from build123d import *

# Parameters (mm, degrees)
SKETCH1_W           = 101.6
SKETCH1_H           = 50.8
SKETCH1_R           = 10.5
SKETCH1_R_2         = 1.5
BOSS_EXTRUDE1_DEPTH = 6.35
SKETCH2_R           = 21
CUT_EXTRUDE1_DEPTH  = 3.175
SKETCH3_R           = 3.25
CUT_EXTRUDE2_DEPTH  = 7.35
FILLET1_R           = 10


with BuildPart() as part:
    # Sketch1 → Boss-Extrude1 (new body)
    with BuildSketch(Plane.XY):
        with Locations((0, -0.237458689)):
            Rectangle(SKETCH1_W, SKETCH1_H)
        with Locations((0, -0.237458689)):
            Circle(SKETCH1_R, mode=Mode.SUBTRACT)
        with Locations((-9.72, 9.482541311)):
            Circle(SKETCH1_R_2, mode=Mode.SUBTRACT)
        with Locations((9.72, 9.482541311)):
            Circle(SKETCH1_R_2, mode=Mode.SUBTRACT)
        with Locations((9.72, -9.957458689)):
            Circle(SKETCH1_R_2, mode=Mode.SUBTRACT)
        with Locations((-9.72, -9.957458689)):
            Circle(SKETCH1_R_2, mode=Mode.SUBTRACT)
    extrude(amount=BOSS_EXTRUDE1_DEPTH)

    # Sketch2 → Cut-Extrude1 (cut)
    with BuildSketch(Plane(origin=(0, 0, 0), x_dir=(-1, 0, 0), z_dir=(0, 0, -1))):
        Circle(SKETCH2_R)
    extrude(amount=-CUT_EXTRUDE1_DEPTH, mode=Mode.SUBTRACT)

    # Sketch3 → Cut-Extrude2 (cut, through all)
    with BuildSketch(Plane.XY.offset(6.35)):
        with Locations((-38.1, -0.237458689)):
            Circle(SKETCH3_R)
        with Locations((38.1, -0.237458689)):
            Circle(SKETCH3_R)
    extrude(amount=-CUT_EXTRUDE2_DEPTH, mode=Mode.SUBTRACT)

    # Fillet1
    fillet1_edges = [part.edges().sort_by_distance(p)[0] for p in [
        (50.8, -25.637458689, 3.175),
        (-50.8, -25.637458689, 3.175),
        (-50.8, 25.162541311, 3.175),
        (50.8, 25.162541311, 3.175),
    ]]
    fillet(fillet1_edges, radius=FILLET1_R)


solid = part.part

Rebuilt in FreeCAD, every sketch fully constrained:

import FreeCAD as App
import Part
import Sketcher

V = App.Vector
Q = App.Units.Quantity


def edges_at(feature, points):
    """Names of the edges that pass closest to the given points."""
    edges = feature.Shape.Edges
    near = lambda p: min(range(len(edges)), key=lambda i: edges[i].distToShape(Part.Vertex(*p))[0])
    return sorted({f"Edge{near(p) + 1}" for p in points})


def add_polygon(sketch, points):
    """Adds a closed chain of lines whose ends are joined by coincident constraints."""
    first, n = sketch.GeometryCount, len(points)
    for a, b in zip(points, points[1:] + points[:1]):
        sketch.addGeometry(Part.LineSegment(App.Vector(*a, 0), App.Vector(*b, 0)), False)
    for i in range(n):
        sketch.addConstraint(Sketcher.Constraint("Coincident", first + i, 2, first + (i + 1) % n, 1))

doc = App.newDocument("Part")
params = doc.addObject("Spreadsheet::Sheet", "Params")
for row, (alias, value) in enumerate([
    ("sketch1_diameter", "3 mm"),
    ("sketch1_diameter2", "21 mm"),
    ("sketch1_width", "101.6 mm"),
    ("sketch1_height", "50.8 mm"),
    ("pad1_length", "6.35 mm"),
    ("sketch2_diameter", "42 mm"),
    ("pocket1_length", "3.175 mm"),
    ("sketch3_diameter", "6.5 mm"),
    ("fillet_radius", "10 mm"),
], start=1):
    params.set(f"A{row}", alias)
    params.set(f"B{row}", "=" + value)
    params.setAlias(f"B{row}", alias)

body = doc.addObject("PartDesign::Body", "Body")

sketch1 = body.newObject("Sketcher::SketchObject", "Sketch")
sketch1.AttachmentSupport = (doc.getObject("XY_Plane"), [""])
sketch1.MapMode = "FlatFace"
add_polygon(sketch1, [(-50.8, 25.2), (-50.8, -25.6), (50.8, -25.6), (50.8, 25.2)])
sketch1.addGeometry(Part.Circle(V(-9.7, -10, 0), V(0, 0, 1), 1.5), False)
sketch1.addGeometry(Part.Circle(V(9.7, -10, 0), V(0, 0, 1), 1.5), False)
sketch1.addGeometry(Part.Circle(V(-9.7, 9.5, 0), V(0, 0, 1), 1.5), False)
sketch1.addGeometry(Part.Circle(V(0, -0.2, 0), V(0, 0, 1), 10.5), False)
sketch1.addGeometry(Part.Circle(V(9.7, 9.5, 0), V(0, 0, 1), 1.5), False)
sketch1.addConstraint([
    Sketcher.Constraint("Vertical", 0),
    Sketcher.Constraint("Horizontal", 1),
    Sketcher.Constraint("Vertical", 2),
    Sketcher.Constraint("Horizontal", 3),
    Sketcher.Constraint("Equal", 4, 5),
    Sketcher.Constraint("Equal", 5, 6),
    Sketcher.Constraint("Equal", 6, 8),
    Sketcher.Constraint("Symmetric", 4, 3, 5, 3, -2),
    Sketcher.Constraint("Symmetric", 6, 3, 8, 3, -2),
    Sketcher.Constraint("PointOnObject", 7, 3, -2),
    Sketcher.Constraint("Vertical", 4, 3, 6, 3),
    Sketcher.Constraint("Diameter", 4, Q("3 mm")),
    Sketcher.Constraint("Diameter", 7, Q("21 mm")),
    Sketcher.Constraint("DistanceX", 1, 1, 1, 2, Q("101.6 mm")),
    Sketcher.Constraint("DistanceY", 0, 2, 0, 1, Q("50.8 mm")),
    Sketcher.Constraint("DistanceX", 0, 2, -1, 1, Q("50.8 mm")),
    Sketcher.Constraint("DistanceY", 0, 2, 7, 3, Q("25.4 mm")),
    Sketcher.Constraint("DistanceX", 4, 3, -1, 1, Q("9.72 mm")),
    Sketcher.Constraint("DistanceY", 4, 3, 6, 3, Q("19.44 mm")),
    Sketcher.Constraint("DistanceY", 4, 3, 7, 3, Q("9.72 mm")),
    Sketcher.Constraint("DistanceY", 4, 3, -1, 1, Q("9.957459 mm")),
])
sketch1.setExpression("Constraints[15]", "Params.sketch1_diameter")
sketch1.setExpression("Constraints[16]", "Params.sketch1_diameter2")
sketch1.setExpression("Constraints[17]", "Params.sketch1_width")
sketch1.setExpression("Constraints[18]", "Params.sketch1_height")
pad1 = body.newObject("PartDesign::Pad", "Pad")
pad1.Profile = sketch1
pad1.setExpression("Length", "Params.pad1_length")

sketch2 = body.newObject("Sketcher::SketchObject", "Sketch001")
sketch2.AttachmentSupport = (doc.getObject("XY_Plane"), [""])
sketch2.MapMode = "FlatFace"
sketch2.addGeometry(Part.Circle(V(0, 0, 0), V(0, 0, 1), 21), False)
sketch2.addConstraint([
    Sketcher.Constraint("Coincident", 0, 3, -1, 1),
    Sketcher.Constraint("Diameter", 0, Q("42 mm")),
])
sketch2.setExpression("Constraints[1]", "Params.sketch2_diameter")
pocket1 = body.newObject("PartDesign::Pocket", "Pocket")
pocket1.Profile = sketch2
pocket1.setExpression("Length", "Params.pocket1_length")
pocket1.Reversed = True

sketch3 = body.newObject("Sketcher::SketchObject", "Sketch002")
sketch3.AttachmentSupport = (doc.getObject("XY_Plane"), [""])
sketch3.MapMode = "FlatFace"
sketch3.AttachmentOffset = App.Placement(V(0, 0, 6.35), App.Rotation())
sketch3.addGeometry([
    Part.Circle(V(-38.1, -0.2, 0), V(0, 0, 1), 3.2),
    Part.Circle(V(38.1, -0.2, 0), V(0, 0, 1), 3.2),
], False)
sketch3.addConstraint([
    Sketcher.Constraint("Equal", 0, 1),
    Sketcher.Constraint("Symmetric", 0, 3, 1, 3, -2),
    Sketcher.Constraint("Diameter", 0, Q("6.5 mm")),
    Sketcher.Constraint("DistanceX", 0, 3, -1, 1, Q("38.1 mm")),
    Sketcher.Constraint("DistanceY", 0, 3, -1, 1, Q("0.237459 mm")),
])
sketch3.setExpression("Constraints[2]", "Params.sketch3_diameter")
pocket2 = body.newObject("PartDesign::Pocket", "Pocket001")
pocket2.Profile = sketch3
pocket2.Type = "ThroughAll"
doc.recompute()

fillet = body.newObject("PartDesign::Fillet", "Fillet")
fillet.Base = (pocket2, edges_at(pocket2, [
    (50.8, -25.637, 3.175),
    (-50.8, -25.637, 3.175),
    (-50.8, 25.163, 3.175),
    (50.8, 25.163, 3.175),
]))
fillet.setExpression("Radius", "Params.fillet_radius")

doc.recompute()
